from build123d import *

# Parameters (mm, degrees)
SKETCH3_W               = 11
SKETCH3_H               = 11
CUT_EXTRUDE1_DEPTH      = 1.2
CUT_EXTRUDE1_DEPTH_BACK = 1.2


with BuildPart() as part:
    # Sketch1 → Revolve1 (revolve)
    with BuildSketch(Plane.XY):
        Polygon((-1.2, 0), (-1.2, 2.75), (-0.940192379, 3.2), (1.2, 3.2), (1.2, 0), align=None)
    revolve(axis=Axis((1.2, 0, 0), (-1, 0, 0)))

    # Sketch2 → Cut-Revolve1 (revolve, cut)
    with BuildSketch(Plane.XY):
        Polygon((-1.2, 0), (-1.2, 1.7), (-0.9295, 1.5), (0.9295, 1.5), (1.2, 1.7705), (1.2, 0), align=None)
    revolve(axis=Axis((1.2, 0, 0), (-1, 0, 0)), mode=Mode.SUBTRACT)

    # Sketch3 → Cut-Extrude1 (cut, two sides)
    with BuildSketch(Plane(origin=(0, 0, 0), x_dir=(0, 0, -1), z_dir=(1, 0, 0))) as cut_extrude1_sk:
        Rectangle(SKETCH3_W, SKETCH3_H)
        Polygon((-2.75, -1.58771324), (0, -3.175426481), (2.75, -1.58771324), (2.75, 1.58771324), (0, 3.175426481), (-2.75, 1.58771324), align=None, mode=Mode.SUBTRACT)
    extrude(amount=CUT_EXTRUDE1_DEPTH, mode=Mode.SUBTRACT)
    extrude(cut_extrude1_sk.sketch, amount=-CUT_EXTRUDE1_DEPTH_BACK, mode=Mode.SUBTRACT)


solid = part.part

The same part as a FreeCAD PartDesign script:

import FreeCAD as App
import Part
import Sketcher
Q = App.Units.Quantity


def add_polygon(sketch, points):
    """Adds a closed chain of lines whose ends are joined by coincident constraints."""
    first, n = sketch.GeometryCount, len(points)
    for a, b in zip(points, points[1:] + points[:1]):
        sketch.addGeometry(Part.LineSegment(App.Vector(*a, 0), App.Vector(*b, 0)), False)
    for i in range(n):
        sketch.addConstraint(Sketcher.Constraint("Coincident", first + i, 2, first + (i + 1) % n, 1))

doc = App.newDocument("Part")
body = doc.addObject("PartDesign::Body", "Body")

sketch1 = body.newObject("Sketcher::SketchObject", "Sketch")
sketch1.AttachmentSupport = (doc.getObject("XY_Plane"), [""])
sketch1.MapMode = "FlatFace"
add_polygon(sketch1, [(-1.2, 2.8), (-1.2, 0), (1.2, 0), (1.2, 3.2), (-0.9, 3.2)])
sketch1.addConstraint(Sketcher.Constraint("Vertical", 0))
sketch1.addConstraint(Sketcher.Constraint("Horizontal", 1))
sketch1.addConstraint(Sketcher.Constraint("Vertical", 2))
sketch1.addConstraint(Sketcher.Constraint("Horizontal", 3))
sketch1.addConstraint(Sketcher.Constraint("Symmetric", 0, 2, 1, 2, -1, 1))
sketch1.addConstraint(Sketcher.Constraint("Angle", 4, Q("-120 deg")))
sketch1.addConstraint(Sketcher.Constraint("DistanceX", 1, 1, 1, 2, Q("2.4 mm")))
sketch1.addConstraint(Sketcher.Constraint("DistanceY", 2, 1, 2, 2, Q("3.2 mm")))
sketch1.addConstraint(Sketcher.Constraint("DistanceY", 0, 2, 0, 1, Q("2.75 mm")))
revolution = body.newObject("PartDesign::Revolution", "Revolution")
revolution.Profile = sketch1
revolution.ReferenceAxis = (sketch1, ["H_Axis"])
revolution.Angle = 360

sketch2 = body.newObject("Sketcher::SketchObject", "Sketch001")
sketch2.AttachmentSupport = (doc.getObject("XY_Plane"), [""])
sketch2.MapMode = "FlatFace"
add_polygon(sketch2, [(-1.2, 1.7), (-1.2, 0), (1.2, 0), (1.2, 1.77), (0.93, 1.5), (-0.93, 1.5)])
sketch2.addConstraint(Sketcher.Constraint("Vertical", 0))
sketch2.addConstraint(Sketcher.Constraint("Horizontal", 1))
sketch2.addConstraint(Sketcher.Constraint("Vertical", 2))
sketch2.addConstraint(Sketcher.Constraint("Horizontal", 4))
sketch2.addConstraint(Sketcher.Constraint("Symmetric", 0, 2, 1, 2, -1, 1))
sketch2.addConstraint(Sketcher.Constraint("Angle", 3, Q("-135 deg")))
sketch2.addConstraint(Sketcher.Constraint("DistanceX", 1, 1, 1, 2, Q("2.4 mm")))
sketch2.addConstraint(Sketcher.Constraint("DistanceY", 0, 2, 0, 1, Q("1.7 mm")))
sketch2.addConstraint(Sketcher.Constraint("DistanceY", -1, 1, 3, 2, Q("1.5 mm")))
sketch2.addConstraint(Sketcher.Constraint("DistanceX", 4, 2, 4, 1, Q("1.859 mm")))
sketch2.addConstraint(Sketcher.Constraint("DistanceY", 2, 1, 2, 2, Q("1.7705 mm")))
groove = body.newObject("PartDesign::Groove", "Groove")
groove.Profile = sketch2
groove.ReferenceAxis = (sketch2, ["H_Axis"])
groove.Angle = 360

sketch3 = body.newObject("Sketcher::SketchObject", "Sketch002")
sketch3.AttachmentSupport = (doc.getObject("YZ_Plane"), [""])
sketch3.MapMode = "FlatFace"
add_polygon(sketch3, [(5.5, 5.5), (-5.5, 5.5), (-5.5, -5.5), (5.5, -5.5)])
add_polygon(sketch3, [(-3.2, 0), (-1.6, 2.8), (1.6, 2.8), (3.2, 0), (1.6, -2.8), (-1.6, -2.8)])
sketch3.addConstraint(Sketcher.Constraint("Horizontal", 0))
sketch3.addConstraint(Sketcher.Constraint("Vertical", 1))
sketch3.addConstraint(Sketcher.Constraint("Horizontal", 2))
sketch3.addConstraint(Sketcher.Constraint("Vertical", 3))
sketch3.addConstraint(Sketcher.Constraint("Horizontal", 5))
sketch3.addConstraint(Sketcher.Constraint("Horizontal", 8))
sketch3.addConstraint(Sketcher.Constraint("Symmetric", 0, 2, 2, 2, -1, 1))
sketch3.addConstraint(Sketcher.Constraint("Symmetric", 4, 2, 7, 2, -1, 1))
sketch3.addConstraint(Sketcher.Constraint("Symmetric", 6, 2, 9, 2, -1, 1))
sketch3.addConstraint(Sketcher.Constraint("PointOnObject", 6, 2, -1))
sketch3.addConstraint(Sketcher.Constraint("Parallel", 6, 9))
sketch3.addConstraint(Sketcher.Constraint("Vertical", 5, 2, 7, 2))
sketch3.addConstraint(Sketcher.Constraint("Equal", 2, 1))
sketch3.addConstraint(Sketcher.Constraint("DistanceX", 0, 2, 0, 1, Q("11 mm")))
sketch3.addConstraint(Sketcher.Constraint("Angle", 4, Q("60 deg")))
sketch3.addConstraint(Sketcher.Constraint("DistanceY", 7, 2, 5, 2, Q("5.5 mm")))
sketch3.addConstraint(Sketcher.Constraint("DistanceX", 5, 1, 5, 2, Q("3.175426 mm")))
pocket1 = body.newObject("PartDesign::Pocket", "Pocket")
pocket1.Profile = sketch3
pocket1.Type = "ThroughAll"
pocket1.Midplane = True

doc.recompute()
